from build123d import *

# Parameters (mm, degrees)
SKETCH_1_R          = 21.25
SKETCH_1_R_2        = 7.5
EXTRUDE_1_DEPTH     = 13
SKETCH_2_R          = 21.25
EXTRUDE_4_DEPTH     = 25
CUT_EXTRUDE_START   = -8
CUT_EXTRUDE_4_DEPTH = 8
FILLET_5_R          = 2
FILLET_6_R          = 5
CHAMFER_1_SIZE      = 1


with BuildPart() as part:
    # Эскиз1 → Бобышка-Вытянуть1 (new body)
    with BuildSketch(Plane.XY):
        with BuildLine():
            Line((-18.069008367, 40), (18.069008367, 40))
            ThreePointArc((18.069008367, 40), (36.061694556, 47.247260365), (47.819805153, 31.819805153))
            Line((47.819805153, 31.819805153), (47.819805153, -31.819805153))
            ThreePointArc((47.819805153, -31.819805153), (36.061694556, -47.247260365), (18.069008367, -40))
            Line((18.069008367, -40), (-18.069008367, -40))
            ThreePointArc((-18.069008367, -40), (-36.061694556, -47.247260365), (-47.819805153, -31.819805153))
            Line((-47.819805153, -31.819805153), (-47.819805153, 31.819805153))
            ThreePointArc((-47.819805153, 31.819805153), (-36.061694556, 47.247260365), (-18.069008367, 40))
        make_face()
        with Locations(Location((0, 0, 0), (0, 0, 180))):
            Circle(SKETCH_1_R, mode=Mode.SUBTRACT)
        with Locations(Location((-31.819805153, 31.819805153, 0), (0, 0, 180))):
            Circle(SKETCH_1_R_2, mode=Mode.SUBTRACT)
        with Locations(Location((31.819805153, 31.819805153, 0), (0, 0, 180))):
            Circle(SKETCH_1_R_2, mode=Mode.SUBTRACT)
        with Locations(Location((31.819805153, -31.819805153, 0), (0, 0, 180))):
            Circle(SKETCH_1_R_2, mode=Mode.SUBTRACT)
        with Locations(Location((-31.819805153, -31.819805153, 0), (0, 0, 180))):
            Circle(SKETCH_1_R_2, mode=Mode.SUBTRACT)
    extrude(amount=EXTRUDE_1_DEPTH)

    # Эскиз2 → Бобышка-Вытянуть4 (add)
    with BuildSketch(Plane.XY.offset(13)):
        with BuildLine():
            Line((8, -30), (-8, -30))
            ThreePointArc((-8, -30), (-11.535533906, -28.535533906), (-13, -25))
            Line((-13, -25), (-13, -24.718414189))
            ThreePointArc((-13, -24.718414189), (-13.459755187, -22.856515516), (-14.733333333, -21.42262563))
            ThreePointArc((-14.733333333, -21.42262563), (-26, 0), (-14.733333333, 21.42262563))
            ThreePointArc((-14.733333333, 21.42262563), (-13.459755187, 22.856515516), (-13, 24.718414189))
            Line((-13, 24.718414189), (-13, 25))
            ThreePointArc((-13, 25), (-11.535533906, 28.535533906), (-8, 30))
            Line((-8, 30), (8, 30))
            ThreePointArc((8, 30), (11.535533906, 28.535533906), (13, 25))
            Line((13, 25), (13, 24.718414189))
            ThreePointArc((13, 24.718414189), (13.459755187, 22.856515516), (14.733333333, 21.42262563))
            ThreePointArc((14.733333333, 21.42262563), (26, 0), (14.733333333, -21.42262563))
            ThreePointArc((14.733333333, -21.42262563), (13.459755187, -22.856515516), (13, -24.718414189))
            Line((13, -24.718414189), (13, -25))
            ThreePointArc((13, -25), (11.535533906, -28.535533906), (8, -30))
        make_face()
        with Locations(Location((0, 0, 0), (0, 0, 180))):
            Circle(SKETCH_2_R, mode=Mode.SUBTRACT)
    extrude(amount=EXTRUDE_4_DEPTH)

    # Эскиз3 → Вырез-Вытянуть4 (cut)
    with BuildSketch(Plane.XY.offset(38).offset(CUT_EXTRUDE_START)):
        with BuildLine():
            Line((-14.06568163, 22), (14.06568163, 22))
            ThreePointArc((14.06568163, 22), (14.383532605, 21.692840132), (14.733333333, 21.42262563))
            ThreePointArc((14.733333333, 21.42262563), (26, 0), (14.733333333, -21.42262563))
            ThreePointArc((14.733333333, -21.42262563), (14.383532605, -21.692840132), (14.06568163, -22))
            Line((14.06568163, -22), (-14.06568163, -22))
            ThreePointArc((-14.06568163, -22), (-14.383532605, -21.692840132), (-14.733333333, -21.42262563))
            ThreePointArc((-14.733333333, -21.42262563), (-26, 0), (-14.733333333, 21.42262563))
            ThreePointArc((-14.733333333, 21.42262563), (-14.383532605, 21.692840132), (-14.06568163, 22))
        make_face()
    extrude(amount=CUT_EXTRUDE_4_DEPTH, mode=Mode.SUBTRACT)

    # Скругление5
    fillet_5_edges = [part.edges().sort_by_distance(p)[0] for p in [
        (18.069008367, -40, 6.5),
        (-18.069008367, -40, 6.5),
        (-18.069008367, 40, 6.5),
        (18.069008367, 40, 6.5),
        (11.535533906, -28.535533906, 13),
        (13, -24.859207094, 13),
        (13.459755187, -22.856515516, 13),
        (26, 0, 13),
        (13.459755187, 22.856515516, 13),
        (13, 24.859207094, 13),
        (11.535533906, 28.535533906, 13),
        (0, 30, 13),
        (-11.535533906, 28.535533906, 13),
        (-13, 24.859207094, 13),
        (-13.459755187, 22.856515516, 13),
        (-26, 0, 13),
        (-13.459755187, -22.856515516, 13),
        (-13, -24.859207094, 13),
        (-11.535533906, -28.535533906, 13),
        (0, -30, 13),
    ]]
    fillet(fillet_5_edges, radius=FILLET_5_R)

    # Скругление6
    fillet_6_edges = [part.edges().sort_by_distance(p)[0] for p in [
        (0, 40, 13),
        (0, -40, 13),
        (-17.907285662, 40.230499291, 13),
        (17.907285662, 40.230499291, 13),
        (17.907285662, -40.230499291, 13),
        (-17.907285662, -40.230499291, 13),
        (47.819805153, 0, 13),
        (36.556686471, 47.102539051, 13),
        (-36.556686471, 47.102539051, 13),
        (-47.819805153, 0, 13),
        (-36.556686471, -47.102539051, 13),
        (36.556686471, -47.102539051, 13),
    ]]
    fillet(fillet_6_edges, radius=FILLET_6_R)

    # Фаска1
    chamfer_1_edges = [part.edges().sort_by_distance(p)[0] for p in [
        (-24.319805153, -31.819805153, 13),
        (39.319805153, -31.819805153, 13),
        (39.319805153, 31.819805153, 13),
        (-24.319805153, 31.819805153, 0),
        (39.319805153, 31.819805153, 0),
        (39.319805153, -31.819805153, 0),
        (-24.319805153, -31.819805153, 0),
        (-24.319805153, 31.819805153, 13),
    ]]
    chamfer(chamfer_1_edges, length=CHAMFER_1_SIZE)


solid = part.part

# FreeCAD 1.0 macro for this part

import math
import FreeCAD as App
import Part
import Sketcher
from FreeCAD import Vector


def edges_at(feature, points):
    """Names of the edges that pass closest to the given points."""
    edges = feature.Shape.Edges
    near = lambda p: min(range(len(edges)), key=lambda i: edges[i].distToShape(Part.Vertex(*p))[0])
    return sorted({f"Edge{near(p) + 1}" for p in points})

doc = App.newDocument("Part")
body = doc.addObject("PartDesign::Body", "Body")

# Sketch on XY plane
sketch1 = body.newObject("Sketcher::SketchObject", "Sketch")
sketch1.AttachmentSupport = (doc.getObject("XY_Plane"), [""])
sketch1.MapMode = "FlatFace"
sketch1.addGeometry([
    Part.LineSegment(Vector(18, 40, 0), Vector(-18, 40, 0)),  # 0
    Part.ArcOfCircle(Part.Circle(Vector(-32, 32, 0), Vector(0, 0, 1), 16), math.radians(31), math.radians(180)),  # 1
    Part.LineSegment(Vector(-48, 32, 0), Vector(-48, -32, 0)),  # 2
    Part.ArcOfCircle(Part.Circle(Vector(-32, -32, 0), Vector(0, 0, 1), 16), math.radians(180), math.radians(329)),  # 3
    Part.LineSegment(Vector(-18, -40, 0), Vector(18, -40, 0)),  # 4
    Part.ArcOfCircle(Part.Circle(Vector(32, -32, 0), Vector(0, 0, 1), 16), math.radians(-149), math.radians(0)),  # 5
    Part.LineSegment(Vector(48, -32, 0), Vector(48, 32, 0)),  # 6
    Part.ArcOfCircle(Part.Circle(Vector(32, 32, 0), Vector(0, 0, 1), 16), math.radians(0), math.radians(149)),  # 7
    Part.Circle(Vector(32, -32, 0), Vector(0, 0, 1), 8),  # 8
    Part.Circle(Vector(-32, -32, 0), Vector(0, 0, 1), 8),  # 9
    Part.Circle(Vector(32, 32, 0), Vector(0, 0, 1), 8),  # 10
    Part.Circle(Vector(0, 0, 0), Vector(0, 0, 1), 21),  # 11
    Part.Circle(Vector(-32, 32, 0), Vector(0, 0, 1), 8),  # 12
], False)
sketch1.addConstraint([
    Sketcher.Constraint("Coincident", 0, 2, 1, 1),
    Sketcher.Constraint("Tangent", 1, 2, 2, 1),
    Sketcher.Constraint("Tangent", 2, 2, 3, 1),
    Sketcher.Constraint("Coincident", 3, 2, 4, 1),
    Sketcher.Constraint("Coincident", 4, 2, 5, 1),
    Sketcher.Constraint("Tangent", 5, 2, 6, 1),
    Sketcher.Constraint("Tangent", 6, 2, 7, 1),
    Sketcher.Constraint("Coincident", 7, 2, 0, 1),
    Sketcher.Constraint("Horizontal", 0),
    Sketcher.Constraint("Vertical", 2),
    Sketcher.Constraint("Horizontal", 4),
    Sketcher.Constraint("Vertical", 6),
    Sketcher.Constraint("Coincident", 11, 3, -1, 1),
    Sketcher.Constraint("Coincident", 8, 3, 5, 3),
    Sketcher.Constraint("Coincident", 9, 3, 3, 3),
    Sketcher.Constraint("Coincident", 10, 3, 7, 3),
    Sketcher.Constraint("Coincident", 12, 3, 1, 3),
    Sketcher.Constraint("Equal", 1, 3),
    Sketcher.Constraint("Equal", 3, 5),
    Sketcher.Constraint("Equal", 5, 7),
    Sketcher.Constraint("Equal", 8, 9),
    Sketcher.Constraint("Equal", 9, 10),
    Sketcher.Constraint("Equal", 10, 12),
    Sketcher.Constraint("Symmetric", 1, 3, 5, 3, -1, 1),
    Sketcher.Constraint("Symmetric", 3, 2, 7, 2, -1, 1),
    Sketcher.Constraint("Horizontal", 3, 3, 5, 3),
    Sketcher.Constraint("Diameter", 8, 15.0),
    Sketcher.Constraint("Radius", 1, 16.0),
    Sketcher.Constraint("Diameter", 11, 42.5),
    Sketcher.Constraint("DistanceY", -1, 1, 0, 2, 40.0),
    Sketcher.Constraint("DistanceY", 2, 2, 2, 1, 63.63961),
    Sketcher.Constraint("DistanceX", 0, 2, 0, 1, 36.138017),
])
pad1 = body.newObject("PartDesign::Pad", "Pad")
pad1.Profile = sketch1
pad1.Length = 13

# Sketch on XY plane
sketch2 = body.newObject("Sketcher::SketchObject", "Sketch001")
sketch2.AttachmentSupport = (doc.getObject("XY_Plane"), [""])
sketch2.MapMode = "FlatFace"
sketch2.AttachmentOffset = App.Placement(Vector(0, 0, 13), App.Rotation())
sketch2.addGeometry([
    Part.LineSegment(Vector(-8, -30, 0), Vector(8, -30, 0)),  # 0
    Part.ArcOfCircle(Part.Circle(Vector(8, -25, 0), Vector(0, 0, 1), 5), math.radians(-90), math.radians(0)),  # 1
    Part.LineSegment(Vector(13, -25, 0), Vector(13, -24.72, 0)),  # 2
    Part.ArcOfCircle(Part.Circle(Vector(17, -24.72, 0), Vector(0, 0, 1), 4), math.radians(125), math.radians(180)),  # 3
    Part.ArcOfCircle(Part.Circle(Vector(0, 0, 0), Vector(0, 0, 1), 26), math.radians(-55), math.radians(55)),  # 4
    Part.ArcOfCircle(Part.Circle(Vector(17, 24.72, 0), Vector(0, 0, 1), 4), math.radians(180), math.radians(235)),  # 5
    Part.LineSegment(Vector(13, 24.72, 0), Vector(13, 25, 0)),  # 6
    Part.ArcOfCircle(Part.Circle(Vector(8, 25, 0), Vector(0, 0, 1), 5), math.radians(0), math.radians(90)),  # 7
    Part.LineSegment(Vector(8, 30, 0), Vector(-8, 30, 0)),  # 8
    Part.ArcOfCircle(Part.Circle(Vector(-8, 25, 0), Vector(0, 0, 1), 5), math.radians(90), math.radians(180)),  # 9
    Part.LineSegment(Vector(-13, 25, 0), Vector(-13, 24.72, 0)),  # 10
    Part.ArcOfCircle(Part.Circle(Vector(-17, 24.72, 0), Vector(0, 0, 1), 4), math.radians(-55), math.radians(0)),  # 11
    Part.ArcOfCircle(Part.Circle(Vector(0, 0, 0), Vector(0, 0, 1), 26), math.radians(125), math.radians(235)),  # 12
    Part.ArcOfCircle(Part.Circle(Vector(-17, -24.72, 0), Vector(0, 0, 1), 4), math.radians(0), math.radians(55)),  # 13
    Part.LineSegment(Vector(-13, -24.72, 0), Vector(-13, -25, 0)),  # 14
    Part.ArcOfCircle(Part.Circle(Vector(-8, -25, 0), Vector(0, 0, 1), 5), math.radians(180), math.radians(270)),  # 15
    Part.Circle(Vector(0, 0, 0), Vector(0, 0, 1), 21.25),  # 16
], False)
sketch2.addConstraint([
    Sketcher.Constraint("Tangent", 0, 2, 1, 1),
    Sketcher.Constraint("Tangent", 1, 2, 2, 1),
    Sketcher.Constraint("Tangent", 2, 2, 3, 2),
    Sketcher.Constraint("Tangent", 3, 1, 4, 1),
    Sketcher.Constraint("Tangent", 4, 2, 5, 2),
    Sketcher.Constraint("Tangent", 5, 1, 6, 1),
    Sketcher.Constraint("Tangent", 6, 2, 7, 1),
    Sketcher.Constraint("Tangent", 7, 2, 8, 1),
    Sketcher.Constraint("Tangent", 8, 2, 9, 1),
    Sketcher.Constraint("Tangent", 9, 2, 10, 1),
    Sketcher.Constraint("Tangent", 10, 2, 11, 2),
    Sketcher.Constraint("Tangent", 11, 1, 12, 1),
    Sketcher.Constraint("Tangent", 12, 2, 13, 2),
    Sketcher.Constraint("Tangent", 13, 1, 14, 1),
    Sketcher.Constraint("Tangent", 14, 2, 15, 1),
    Sketcher.Constraint("Tangent", 15, 2, 0, 1),
    Sketcher.Constraint("Horizontal", 0),
    Sketcher.Constraint("Vertical", 2),
    Sketcher.Constraint("Vertical", 6),
    Sketcher.Constraint("Horizontal", 8),
    Sketcher.Constraint("Vertical", 10),
    Sketcher.Constraint("Vertical", 14),
    Sketcher.Constraint("Coincident", 4, 3, -1, 1),
    Sketcher.Constraint("Coincident", 12, 3, -1, 1),
    Sketcher.Constraint("Coincident", 16, 3, -1, 1),
    Sketcher.Constraint("Equal", 3, 5),
    Sketcher.Constraint("Equal", 1, 7),
    Sketcher.Constraint("Equal", 7, 9),
    Sketcher.Constraint("Equal", 5, 11),
    Sketcher.Constraint("Equal", 4, 12),
    Sketcher.Constraint("Equal", 11, 13),
    Sketcher.Constraint("Equal", 9, 15),
    Sketcher.Constraint("Symmetric", 1, 3, 9, 3, -1, 1),
    Sketcher.Constraint("Horizontal", 5, 3, 11, 3),
    Sketcher.Constraint("Horizontal", 3, 3, 13, 3),
    Sketcher.Constraint("Radius", 1, 5.0),
    Sketcher.Constraint("Radius", 3, 4.0),
    Sketcher.Constraint("Radius", 4, 26.0),
    Sketcher.Constraint("Diameter", 16, 42.5),
    Sketcher.Constraint("DistanceX", 0, 1, 0, 2, 16.0),
    Sketcher.Constraint("DistanceY", 1, 3, -1, 1, 25.0),
])
pad2 = body.newObject("PartDesign::Pad", "Pad001")
pad2.Profile = sketch2
pad2.Length = 25

# Sketch on XY plane
sketch3 = body.newObject("Sketcher::SketchObject", "Sketch002")
sketch3.AttachmentSupport = (doc.getObject("XY_Plane"), [""])
sketch3.MapMode = "FlatFace"
sketch3.AttachmentOffset = App.Placement(Vector(0, 0, 30), App.Rotation())
sketch3.addGeometry([
    Part.LineSegment(Vector(14.1, 22, 0), Vector(-14.1, 22, 0)),  # 0
    Part.ArcOfCircle(Part.Circle(Vector(-17, 24.7, 0), Vector(0, 0, 1), 4), math.radians(-55.48), math.radians(-42.81)),  # 1
    Part.ArcOfCircle(Part.Circle(Vector(0, 0, 0), Vector(0, 0, 1), 26), math.radians(125), math.radians(235)),  # 2
    Part.ArcOfCircle(Part.Circle(Vector(-17, -24.7, 0), Vector(0, 0, 1), 4), math.radians(42.81), math.radians(55.48)),  # 3
    Part.LineSegment(Vector(-14.1, -22, 0), Vector(14.1, -22, 0)),  # 4
    Part.ArcOfCircle(Part.Circle(Vector(17, -24.7, 0), Vector(0, 0, 1), 4), math.radians(124.52), math.radians(137.19)),  # 5
    Part.ArcOfCircle(Part.Circle(Vector(0, 0, 0), Vector(0, 0, 1), 26), math.radians(-55), math.radians(55)),  # 6
    Part.ArcOfCircle(Part.Circle(Vector(17, 24.7, 0), Vector(0, 0, 1), 4), math.radians(-137.19), math.radians(-124.52)),  # 7
], False)
sketch3.addConstraint([
    Sketcher.Constraint("Coincident", 0, 2, 1, 2),
    Sketcher.Constraint("Tangent", 1, 1, 2, 1),
    Sketcher.Constraint("Tangent", 2, 2, 3, 2),
    Sketcher.Constraint("Coincident", 3, 1, 4, 1),
    Sketcher.Constraint("Coincident", 4, 2, 5, 2),
    Sketcher.Constraint("Tangent", 5, 1, 6, 1),
    Sketcher.Constraint("Tangent", 6, 2, 7, 2),
    Sketcher.Constraint("Coincident", 7, 1, 0, 1),
    Sketcher.Constraint("Horizontal", 0),
    Sketcher.Constraint("Horizontal", 4),
    Sketcher.Constraint("Coincident", 2, 3, -1, 1),
    Sketcher.Constraint("Coincident", 6, 3, -1, 1),
    Sketcher.Constraint("Equal", 1, 3),
    Sketcher.Constraint("Equal", 3, 5),
    Sketcher.Constraint("Equal", 2, 6),
    Sketcher.Constraint("Equal", 5, 7),
    Sketcher.Constraint("Symmetric", 0, 2, 4, 2, -1, 1),
    Sketcher.Constraint("Horizontal", 3, 3, 5, 3),
    Sketcher.Constraint("Horizontal", 1, 3, 7, 3),
    Sketcher.Constraint("Radius", 1, 4.0),
    Sketcher.Constraint("Radius", 2, 26.0),
    Sketcher.Constraint("DistanceX", 1, 3, -1, 1, 17.0),
    Sketcher.Constraint("DistanceY", -1, 1, 0, 2, 22.0),
])
pocket1 = body.newObject("PartDesign::Pocket", "Pocket")
pocket1.Profile = sketch3
pocket1.Length = 8
pocket1.Reversed = True
doc.recompute()

fillet = body.newObject("PartDesign::Fillet", "Fillet")
fillet.Base = (pocket1, edges_at(pocket1, [
    (18.069, -40, 6.5),
    (-18.069, -40, 6.5),
    (-18.069, 40, 6.5),
    (18.069, 40, 6.5),
    (11.536, -28.536, 13),
    (13, -24.859, 13),
    (13.46, -22.857, 13),
    (26, 0, 13),
    (13.46, 22.857, 13),
    (13, 24.859, 13),
    (11.536, 28.536, 13),
    (0, 30, 13),
    (-11.536, 28.536, 13),
    (-13, 24.859, 13),
    (-13.46, 22.857, 13),
    (-26, 0, 13),
    (-13.46, -22.857, 13),
    (-13, -24.859, 13),
    (-11.536, -28.536, 13),
    (0, -30, 13),
]))
fillet.Radius = 2
doc.recompute()

fillet2 = body.newObject("PartDesign::Fillet", "Fillet001")
fillet2.Base = (fillet, edges_at(fillet, [
    (0, 40, 13),
    (0, -40, 13),
    (-17.907, 40.23, 13),
    (17.907, 40.23, 13),
    (17.907, -40.23, 13),
    (-17.907, -40.23, 13),
    (47.82, 0, 13),
    (36.557, 47.103, 13),
    (-36.557, 47.103, 13),
    (-47.82, 0, 13),
    (-36.557, -47.103, 13),
    (36.557, -47.103, 13),
]))
fillet2.Radius = 5
doc.recompute()

chamfer = body.newObject("PartDesign::Chamfer", "Chamfer")
chamfer.Base = (fillet2, edges_at(fillet2, [
    (-24.32, -31.82, 13),
    (39.32, -31.82, 13),
    (39.32, 31.82, 13),
    (-24.32, 31.82, 0),
    (39.32, 31.82, 0),
    (39.32, -31.82, 0),
    (-24.32, -31.82, 0),
    (-24.32, 31.82, 13),
]))
chamfer.Size = 1

doc.recompute()
